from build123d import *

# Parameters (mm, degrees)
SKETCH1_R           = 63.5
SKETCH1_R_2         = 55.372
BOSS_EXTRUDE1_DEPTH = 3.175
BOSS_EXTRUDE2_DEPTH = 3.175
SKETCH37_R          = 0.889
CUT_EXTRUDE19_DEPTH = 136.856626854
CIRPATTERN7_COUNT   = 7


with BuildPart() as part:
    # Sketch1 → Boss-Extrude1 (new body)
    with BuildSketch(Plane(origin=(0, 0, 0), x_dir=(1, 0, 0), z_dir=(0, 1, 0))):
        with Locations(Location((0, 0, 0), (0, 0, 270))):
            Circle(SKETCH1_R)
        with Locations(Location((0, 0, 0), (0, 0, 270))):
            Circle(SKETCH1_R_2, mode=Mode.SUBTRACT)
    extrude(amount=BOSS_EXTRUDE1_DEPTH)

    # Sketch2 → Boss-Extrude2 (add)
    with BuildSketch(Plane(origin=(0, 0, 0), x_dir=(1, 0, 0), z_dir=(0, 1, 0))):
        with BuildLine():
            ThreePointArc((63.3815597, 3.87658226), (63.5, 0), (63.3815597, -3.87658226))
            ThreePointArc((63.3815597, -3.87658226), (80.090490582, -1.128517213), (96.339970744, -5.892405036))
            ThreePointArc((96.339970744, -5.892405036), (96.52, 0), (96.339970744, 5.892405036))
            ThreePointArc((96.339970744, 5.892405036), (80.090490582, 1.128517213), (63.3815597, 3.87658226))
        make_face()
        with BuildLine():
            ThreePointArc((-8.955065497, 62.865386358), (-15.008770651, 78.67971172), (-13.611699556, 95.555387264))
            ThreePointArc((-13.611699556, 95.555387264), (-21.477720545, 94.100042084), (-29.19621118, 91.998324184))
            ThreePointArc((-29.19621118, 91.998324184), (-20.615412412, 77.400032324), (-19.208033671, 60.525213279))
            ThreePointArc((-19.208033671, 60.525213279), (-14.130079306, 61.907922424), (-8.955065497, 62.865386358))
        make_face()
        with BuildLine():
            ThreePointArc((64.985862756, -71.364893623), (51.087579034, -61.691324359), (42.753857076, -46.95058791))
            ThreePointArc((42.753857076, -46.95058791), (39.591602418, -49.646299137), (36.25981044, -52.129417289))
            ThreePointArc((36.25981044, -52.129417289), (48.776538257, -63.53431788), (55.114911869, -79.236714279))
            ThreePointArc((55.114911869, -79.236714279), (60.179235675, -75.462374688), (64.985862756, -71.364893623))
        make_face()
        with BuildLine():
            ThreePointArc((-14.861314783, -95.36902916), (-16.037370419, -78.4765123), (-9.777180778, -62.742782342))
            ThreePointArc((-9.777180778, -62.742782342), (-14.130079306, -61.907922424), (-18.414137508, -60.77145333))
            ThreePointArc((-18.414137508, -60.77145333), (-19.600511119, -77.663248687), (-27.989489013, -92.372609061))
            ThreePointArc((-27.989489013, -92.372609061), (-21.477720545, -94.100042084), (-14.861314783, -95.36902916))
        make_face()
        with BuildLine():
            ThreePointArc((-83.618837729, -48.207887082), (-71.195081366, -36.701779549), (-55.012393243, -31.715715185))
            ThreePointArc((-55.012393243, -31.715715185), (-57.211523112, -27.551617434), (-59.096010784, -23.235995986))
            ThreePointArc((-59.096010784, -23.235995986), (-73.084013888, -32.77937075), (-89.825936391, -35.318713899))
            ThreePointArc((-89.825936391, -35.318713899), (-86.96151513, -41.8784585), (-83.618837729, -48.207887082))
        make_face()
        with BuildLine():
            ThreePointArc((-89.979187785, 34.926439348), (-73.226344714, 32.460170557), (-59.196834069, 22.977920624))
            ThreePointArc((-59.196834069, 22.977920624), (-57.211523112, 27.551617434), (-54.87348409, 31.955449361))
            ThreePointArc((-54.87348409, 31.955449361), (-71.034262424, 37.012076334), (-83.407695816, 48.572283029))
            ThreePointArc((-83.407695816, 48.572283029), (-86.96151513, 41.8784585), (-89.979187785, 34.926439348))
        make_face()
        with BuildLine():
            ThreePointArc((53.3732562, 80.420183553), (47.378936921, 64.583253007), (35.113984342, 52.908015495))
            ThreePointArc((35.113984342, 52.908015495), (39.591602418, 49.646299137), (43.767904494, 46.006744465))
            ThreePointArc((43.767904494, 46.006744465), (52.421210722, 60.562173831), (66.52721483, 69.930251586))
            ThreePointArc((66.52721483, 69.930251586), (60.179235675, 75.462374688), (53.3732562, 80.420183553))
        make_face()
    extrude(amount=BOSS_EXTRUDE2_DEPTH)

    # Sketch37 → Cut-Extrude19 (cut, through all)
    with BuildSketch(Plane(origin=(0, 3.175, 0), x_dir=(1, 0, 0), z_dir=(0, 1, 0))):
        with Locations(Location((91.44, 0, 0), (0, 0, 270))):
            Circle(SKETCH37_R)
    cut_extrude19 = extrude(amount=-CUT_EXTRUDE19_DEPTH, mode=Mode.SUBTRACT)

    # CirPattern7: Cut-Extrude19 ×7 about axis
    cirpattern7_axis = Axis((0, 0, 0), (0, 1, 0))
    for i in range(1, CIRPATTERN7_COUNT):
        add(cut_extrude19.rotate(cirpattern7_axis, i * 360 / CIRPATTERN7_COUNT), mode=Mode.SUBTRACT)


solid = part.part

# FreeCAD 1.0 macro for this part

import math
import FreeCAD as App
import Part
import Sketcher
from FreeCAD import Vector
Q = App.Units.Quantity

doc = App.newDocument("Part")
params = doc.addObject("Spreadsheet::Sheet", "Params")
for row, (alias, value) in enumerate([
    ("sketch1_diameter", "5 in"),
    ("sketch1_diameter2", "4.36 in"),
    ("pad1_length", "0.125 in"),
    ("sketch2_radius", "2.5 in"),
    ("sketch2_radius2", "1.5 in"),
    ("sketch2_radius3", "3.8 in"),
    ("pad2_length", "0.125 in"),
    ("sketch3_diameter", "0.07 in"),
], start=1):
    params.set(f"A{row}", alias)
    params.set(f"B{row}", "=" + value)
    params.setAlias(f"B{row}", alias)

body = doc.addObject("PartDesign::Body", "Body")

sketch1 = body.newObject("Sketcher::SketchObject", "Sketch")
sketch1.AttachmentSupport = (doc.getObject("XZ_Plane"), [""])
sketch1.MapMode = "FlatFace"
sketch1.addGeometry([
    Part.Circle(Vector(0, 0, 0), Vector(0, 0, 1), 63.5),
    Part.Circle(Vector(0, 0, 0), Vector(0, 0, 1), 55.372),
], False)
sketch1.addConstraint([
    Sketcher.Constraint("Coincident", 0, 3, -1, 1),
    Sketcher.Constraint("Coincident", 1, 3, -1, 1),
    Sketcher.Constraint("Diameter", 0, Q("5 in")),
    Sketcher.Constraint("Diameter", 1, Q("4.36 in")),
])
sketch1.setExpression("Constraints[2]", "Params.sketch1_diameter")
sketch1.setExpression("Constraints[3]", "Params.sketch1_diameter2")
pad1 = body.newObject("PartDesign::Pad", "Pad")
pad1.Profile = sketch1
pad1.setExpression("Length", "Params.pad1_length")
pad1.Reversed = True

sketch2 = body.newObject("Sketcher::SketchObject", "Sketch001")
sketch2.AttachmentSupport = (doc.getObject("XZ_Plane"), [""])
sketch2.MapMode = "FlatFace"
sketch2.addGeometry([
    Part.ArcOfCircle(Part.Circle(Vector(0, 0, 0), Vector(0, 0, 1), 63.5), math.radians(-3.5), math.radians(3.5)),
    Part.ArcOfCircle(Part.Circle(Vector(77.764541, 39.157453, 0), Vector(0, 0, 1), 38.1), math.radians(-112.179289), math.radians(-60.820711)),
    Part.ArcOfCircle(Part.Circle(Vector(0, 0, 0), Vector(0, 0, 1), 96.52), math.radians(-3.5), math.radians(3.5)),
    Part.ArcOfCircle(Part.Circle(Vector(77.764541, -39.157453, 0), Vector(0, 0, 1), 38.1), math.radians(60.820711), math.radians(112.179289)),
    Part.ArcOfCircle(Part.Circle(Vector(22.710461, -84.052751, 0), Vector(0, 0, 1), 38.1), math.radians(146.213569), math.radians(197.572146)),
    Part.ArcOfCircle(Part.Circle(Vector(0, 0, 0), Vector(0, 0, 1), 96.52), math.radians(-107.607143), math.radians(-98.107143)),
    Part.ArcOfCircle(Part.Circle(Vector(-56.93054, -65.875212, 0), Vector(0, 0, 1), 38.1), math.radians(-43.286431), math.radians(8.072146)),
    Part.ArcOfCircle(Part.Circle(Vector(0, 0, 0), Vector(0, 0, 1), 63.5), math.radians(-107.607143), math.radians(-98.107143)),
    Part.ArcOfCircle(Part.Circle(Vector(79.257932, 36.03901, 0), Vector(0, 0, 1), 38.1), math.radians(111.999283), math.radians(163.35786)),
    Part.ArcOfCircle(Part.Circle(Vector(0, 0, 0), Vector(0, 0, 1), 63.5), math.radians(47.678571), math.radians(55.178571)),
    Part.ArcOfCircle(Part.Circle(Vector(17.498888, 85.290204, 0), Vector(0, 0, 1), 38.1), math.radians(-60.500717), math.radians(-9.14214)),
    Part.ArcOfCircle(Part.Circle(Vector(0, 0, 0), Vector(0, 0, 1), 96.52), math.radians(47.678571), math.radians(55.178571)),
    Part.ArcOfCircle(Part.Circle(Vector(21.608299, 84.342821, 0), Vector(0, 0, 1), 38.1), math.radians(163.177854), math.radians(214.536431)),
    Part.ArcOfCircle(Part.Circle(Vector(0, 0, 0), Vector(0, 0, 1), 63.5), math.radians(98.857143), math.radians(106.857143)),
    Part.ArcOfCircle(Part.Circle(Vector(-56.063383, 66.614766, 0), Vector(0, 0, 1), 38.1), math.radians(-8.822146), math.radians(42.536431)),
    Part.ArcOfCircle(Part.Circle(Vector(0, 0, 0), Vector(0, 0, 1), 96.52), math.radians(98.857143), math.radians(106.857143)),
    Part.ArcOfCircle(Part.Circle(Vector(-52.165652, 69.709215, 0), Vector(0, 0, 1), 38.1), math.radians(-145.643574), math.radians(-94.284997)),
    Part.ArcOfCircle(Part.Circle(Vector(0, 0, 0), Vector(0, 0, 1), 63.5), math.radians(150.035714), math.radians(158.535714)),
    Part.ArcOfCircle(Part.Circle(Vector(-87.025611, -2.678236, 0), Vector(0, 0, 1), 38.1), math.radians(42.856426), math.radians(94.215003)),
    Part.ArcOfCircle(Part.Circle(Vector(0, 0, 0), Vector(0, 0, 1), 96.52), math.radians(150.035714), math.radians(158.535714)),
    Part.ArcOfCircle(Part.Circle(Vector(-87.013097, 3.05793, 0), Vector(0, 0, 1), 38.1), math.radians(-94.465003), math.radians(-43.106426)),
    Part.ArcOfCircle(Part.Circle(Vector(0, 0, 0), Vector(0, 0, 1), 63.5), math.radians(-158.785714), math.radians(-149.785714)),
    Part.ArcOfCircle(Part.Circle(Vector(-51.860993, -69.936167, 0), Vector(0, 0, 1), 38.1), math.radians(94.534997), math.radians(145.893574)),
    Part.ArcOfCircle(Part.Circle(Vector(0, 0, 0), Vector(0, 0, 1), 96.52), math.radians(-158.785714), math.radians(-149.785714)),
    Part.ArcOfCircle(Part.Circle(Vector(15.634128, -85.651644, 0), Vector(0, 0, 1), 38.1), math.radians(7.89214), math.radians(59.250717)),
    Part.ArcOfCircle(Part.Circle(Vector(0, 0, 0), Vector(0, 0, 1), 63.5), math.radians(-56.428571), math.radians(-46.428571)),
    Part.ArcOfCircle(Part.Circle(Vector(80.025257, -34.301431, 0), Vector(0, 0, 1), 38.1), math.radians(-162.10786), math.radians(-110.749283)),
    Part.ArcOfCircle(Part.Circle(Vector(0, 0, 0), Vector(0, 0, 1), 96.52), math.radians(-56.428571), math.radians(-46.428571)),
], False)
sketch2.addConstraint([
    Sketcher.Constraint("Coincident", 0, 2, 1, 1),
    Sketcher.Constraint("Coincident", 1, 2, 2, 2),
    Sketcher.Constraint("Coincident", 2, 1, 3, 1),
    Sketcher.Constraint("Coincident", 3, 2, 0, 1),
    Sketcher.Constraint("Coincident", 4, 2, 5, 2),
    Sketcher.Constraint("Coincident", 5, 1, 6, 1),
    Sketcher.Constraint("Coincident", 6, 2, 7, 1),
    Sketcher.Constraint("Coincident", 7, 2, 4, 1),
    Sketcher.Constraint("Coincident", 8, 2, 9, 1),
    Sketcher.Constraint("Coincident", 9, 2, 10, 1),
    Sketcher.Constraint("Coincident", 10, 2, 11, 2),
    Sketcher.Constraint("Coincident", 11, 1, 8, 1),
    Sketcher.Constraint("Coincident", 12, 2, 13, 1),
    Sketcher.Constraint("Coincident", 13, 2, 14, 1),
    Sketcher.Constraint("Coincident", 14, 2, 15, 2),
    Sketcher.Constraint("Coincident", 15, 1, 12, 1),
    Sketcher.Constraint("Coincident", 16, 2, 17, 1),
    Sketcher.Constraint("Coincident", 17, 2, 18, 1),
    Sketcher.Constraint("Coincident", 18, 2, 19, 2),
    Sketcher.Constraint("Coincident", 19, 1, 16, 1),
    Sketcher.Constraint("Coincident", 20, 2, 21, 1),
    Sketcher.Constraint("Coincident", 21, 2, 22, 1),
    Sketcher.Constraint("Coincident", 22, 2, 23, 2),
    Sketcher.Constraint("Coincident", 23, 1, 20, 1),
    Sketcher.Constraint("Coincident", 24, 2, 25, 1),
    Sketcher.Constraint("Coincident", 25, 2, 26, 1),
    Sketcher.Constraint("Coincident", 26, 2, 27, 2),
    Sketcher.Constraint("Coincident", 27, 1, 24, 1),
    Sketcher.Constraint("Coincident", 0, 3, -1, 1),
    Sketcher.Constraint("Coincident", 2, 3, -1, 1),
    Sketcher.Constraint("Coincident", 5, 3, -1, 1),
    Sketcher.Constraint("Coincident", 7, 3, -1, 1),
    Sketcher.Constraint("Coincident", 9, 3, -1, 1),
    Sketcher.Constraint("Coincident", 11, 3, -1, 1),
    Sketcher.Constraint("Coincident", 13, 3, -1, 1),
    Sketcher.Constraint("Coincident", 15, 3, -1, 1),
    Sketcher.Constraint("Coincident", 17, 3, -1, 1),
    Sketcher.Constraint("Coincident", 19, 3, -1, 1),
    Sketcher.Constraint("Coincident", 21, 3, -1, 1),
    Sketcher.Constraint("Coincident", 23, 3, -1, 1),
    Sketcher.Constraint("Coincident", 25, 3, -1, 1),
    Sketcher.Constraint("Coincident", 27, 3, -1, 1),
    Sketcher.Constraint("Equal", 1, 3),
    Sketcher.Constraint("Equal", 3, 4),
    Sketcher.Constraint("Equal", 2, 5),
    Sketcher.Constraint("Equal", 4, 6),
    Sketcher.Constraint("Equal", 0, 7),
    Sketcher.Constraint("Equal", 6, 8),
    Sketcher.Constraint("Equal", 7, 9),
    Sketcher.Constraint("Equal", 8, 10),
    Sketcher.Constraint("Equal", 5, 11),
    Sketcher.Constraint("Equal", 10, 12),
    Sketcher.Constraint("Equal", 9, 13),
    Sketcher.Constraint("Equal", 12, 14),
    Sketcher.Constraint("Equal", 11, 15),
    Sketcher.Constraint("Equal", 14, 16),
    Sketcher.Constraint("Equal", 13, 17),
    Sketcher.Constraint("Equal", 16, 18),
    Sketcher.Constraint("Equal", 15, 19),
    Sketcher.Constraint("Equal", 18, 20),
    Sketcher.Constraint("Equal", 17, 21),
    Sketcher.Constraint("Equal", 20, 22),
    Sketcher.Constraint("Equal", 19, 23),
    Sketcher.Constraint("Equal", 22, 24),
    Sketcher.Constraint("Equal", 21, 25),
    Sketcher.Constraint("Equal", 24, 26),
    Sketcher.Constraint("Equal", 23, 27),
    Sketcher.Constraint("Symmetric", 1, 3, 3, 3, -1),
    Sketcher.Constraint("Radius", 0, Q("2.5 in")),
    Sketcher.Constraint("Radius", 1, Q("1.5 in")),
    Sketcher.Constraint("Radius", 2, Q("3.8 in")),
    Sketcher.Constraint("DistanceY", 20, 2, 18, 3, Q("0.7992002 in")),
    Sketcher.Constraint("DistanceX", -1, 1, 12, 3, Q("21.608299 mm")),
    Sketcher.Constraint("DistanceX", 4, 2, -1, 1, Q("13.6117 mm")),
    Sketcher.Constraint("DistanceX", 6, 3, 4, 3, Q("79.641002 mm")),
    Sketcher.Constraint("DistanceY", 18, 3, 14, 3, Q("69.293002 mm")),
    Sketcher.Constraint("DistanceY", 6, 3, 6, 2, Q("5.349999 mm")),
    Sketcher.Constraint("DistanceY", 4, 2, 7, 2, Q("32.690001 mm")),
    Sketcher.Constraint("DistanceX", 9, 2, 10, 2, Q("18.855101 mm")),
    Sketcher.Constraint("DistanceY", 16, 2, 16, 3, Q("37.9935 mm")),
    Sketcher.Constraint("DistanceX", 18, 3, 17, 2, Q("27.929601 mm")),
    Sketcher.Constraint("DistanceY", 16, 2, 18, 2, Q("3.602999 mm")),
    Sketcher.Constraint("DistanceY", 26, 2, 3, 3, Q("30.772799 mm")),
    Sketcher.Constraint("DistanceY", 4, 3, 26, 2, Q("14.122499 mm")),
    Sketcher.Constraint("DistanceX", -1, 1, 1, 3, Q("77.764541 mm")),
    Sketcher.Constraint("DistanceX", -1, 1, 8, 3, Q("79.257932 mm")),
    Sketcher.Constraint("DistanceY", -1, 1, 8, 3, Q("36.03901 mm")),
    Sketcher.Constraint("DistanceY", -1, 1, 12, 3, Q("84.342821 mm")),
    Sketcher.Constraint("DistanceX", 18, 3, -1, 1, Q("87.025611 mm")),
    Sketcher.Constraint("DistanceY", -1, 1, 20, 3, Q("3.05793 mm")),
    Sketcher.Constraint("DistanceY", 26, 3, -1, 1, Q("34.301431 mm")),
    Sketcher.Constraint("DistanceX", -1, 1, 9, 2, Q("36.25981 mm")),
    Sketcher.Constraint("DistanceX", 14, 2, -1, 1, Q("27.989489 mm")),
    Sketcher.Constraint("DistanceY", 21, 2, -1, 1, Q("31.955449 mm")),
    Sketcher.Constraint("DistanceX", 18, 3, 22, 3, Q("35.164619 mm")),
    Sketcher.Constraint("DistanceX", 22, 3, 24, 3, Q("67.49512 mm")),
    Sketcher.Constraint("DistanceY", 24, 3, 6, 3, Q("19.776431 mm")),
])
sketch2.setExpression("Constraints[68]", "Params.sketch2_radius")
sketch2.setExpression("Constraints[69]", "Params.sketch2_radius2")
sketch2.setExpression("Constraints[70]", "Params.sketch2_radius3")
pad2 = body.newObject("PartDesign::Pad", "Pad001")
pad2.Profile = sketch2
pad2.setExpression("Length", "Params.pad2_length")
pad2.Reversed = True

sketch3 = body.newObject("Sketcher::SketchObject", "Sketch002")
sketch3.AttachmentSupport = (doc.getObject("XZ_Plane"), [""])
sketch3.MapMode = "FlatFace"
sketch3.AttachmentOffset = App.Placement(Vector(0, 0, -0.125 * 25.4), App.Rotation())
sketch3.addGeometry(Part.Circle(Vector(91.44, 0, 0), Vector(0, 0, 1), 0.889), False)
sketch3.addConstraint([
    Sketcher.Constraint("PointOnObject", 0, 3, -1),
    Sketcher.Constraint("Diameter", 0, Q("0.07 in")),
    Sketcher.Constraint("DistanceX", -1, 1, 0, 3, Q("3.6 in")),
])
sketch3.setExpression("Constraints[1]", "Params.sketch3_diameter")
pocket1 = body.newObject("PartDesign::Pocket", "Pocket")
pocket1.Profile = sketch3
pocket1.Type = "ThroughAll"
pocket1.Reversed = True
doc.recompute()

polarpattern = body.newObject("PartDesign::PolarPattern", "PolarPattern")
polarpattern.Originals = [pocket1]
polarpattern.Axis = (doc.getObject("Y_Axis"), [""])
polarpattern.Angle = 360
polarpattern.Occurrences = 7
body.Tip = polarpattern

doc.recompute()
